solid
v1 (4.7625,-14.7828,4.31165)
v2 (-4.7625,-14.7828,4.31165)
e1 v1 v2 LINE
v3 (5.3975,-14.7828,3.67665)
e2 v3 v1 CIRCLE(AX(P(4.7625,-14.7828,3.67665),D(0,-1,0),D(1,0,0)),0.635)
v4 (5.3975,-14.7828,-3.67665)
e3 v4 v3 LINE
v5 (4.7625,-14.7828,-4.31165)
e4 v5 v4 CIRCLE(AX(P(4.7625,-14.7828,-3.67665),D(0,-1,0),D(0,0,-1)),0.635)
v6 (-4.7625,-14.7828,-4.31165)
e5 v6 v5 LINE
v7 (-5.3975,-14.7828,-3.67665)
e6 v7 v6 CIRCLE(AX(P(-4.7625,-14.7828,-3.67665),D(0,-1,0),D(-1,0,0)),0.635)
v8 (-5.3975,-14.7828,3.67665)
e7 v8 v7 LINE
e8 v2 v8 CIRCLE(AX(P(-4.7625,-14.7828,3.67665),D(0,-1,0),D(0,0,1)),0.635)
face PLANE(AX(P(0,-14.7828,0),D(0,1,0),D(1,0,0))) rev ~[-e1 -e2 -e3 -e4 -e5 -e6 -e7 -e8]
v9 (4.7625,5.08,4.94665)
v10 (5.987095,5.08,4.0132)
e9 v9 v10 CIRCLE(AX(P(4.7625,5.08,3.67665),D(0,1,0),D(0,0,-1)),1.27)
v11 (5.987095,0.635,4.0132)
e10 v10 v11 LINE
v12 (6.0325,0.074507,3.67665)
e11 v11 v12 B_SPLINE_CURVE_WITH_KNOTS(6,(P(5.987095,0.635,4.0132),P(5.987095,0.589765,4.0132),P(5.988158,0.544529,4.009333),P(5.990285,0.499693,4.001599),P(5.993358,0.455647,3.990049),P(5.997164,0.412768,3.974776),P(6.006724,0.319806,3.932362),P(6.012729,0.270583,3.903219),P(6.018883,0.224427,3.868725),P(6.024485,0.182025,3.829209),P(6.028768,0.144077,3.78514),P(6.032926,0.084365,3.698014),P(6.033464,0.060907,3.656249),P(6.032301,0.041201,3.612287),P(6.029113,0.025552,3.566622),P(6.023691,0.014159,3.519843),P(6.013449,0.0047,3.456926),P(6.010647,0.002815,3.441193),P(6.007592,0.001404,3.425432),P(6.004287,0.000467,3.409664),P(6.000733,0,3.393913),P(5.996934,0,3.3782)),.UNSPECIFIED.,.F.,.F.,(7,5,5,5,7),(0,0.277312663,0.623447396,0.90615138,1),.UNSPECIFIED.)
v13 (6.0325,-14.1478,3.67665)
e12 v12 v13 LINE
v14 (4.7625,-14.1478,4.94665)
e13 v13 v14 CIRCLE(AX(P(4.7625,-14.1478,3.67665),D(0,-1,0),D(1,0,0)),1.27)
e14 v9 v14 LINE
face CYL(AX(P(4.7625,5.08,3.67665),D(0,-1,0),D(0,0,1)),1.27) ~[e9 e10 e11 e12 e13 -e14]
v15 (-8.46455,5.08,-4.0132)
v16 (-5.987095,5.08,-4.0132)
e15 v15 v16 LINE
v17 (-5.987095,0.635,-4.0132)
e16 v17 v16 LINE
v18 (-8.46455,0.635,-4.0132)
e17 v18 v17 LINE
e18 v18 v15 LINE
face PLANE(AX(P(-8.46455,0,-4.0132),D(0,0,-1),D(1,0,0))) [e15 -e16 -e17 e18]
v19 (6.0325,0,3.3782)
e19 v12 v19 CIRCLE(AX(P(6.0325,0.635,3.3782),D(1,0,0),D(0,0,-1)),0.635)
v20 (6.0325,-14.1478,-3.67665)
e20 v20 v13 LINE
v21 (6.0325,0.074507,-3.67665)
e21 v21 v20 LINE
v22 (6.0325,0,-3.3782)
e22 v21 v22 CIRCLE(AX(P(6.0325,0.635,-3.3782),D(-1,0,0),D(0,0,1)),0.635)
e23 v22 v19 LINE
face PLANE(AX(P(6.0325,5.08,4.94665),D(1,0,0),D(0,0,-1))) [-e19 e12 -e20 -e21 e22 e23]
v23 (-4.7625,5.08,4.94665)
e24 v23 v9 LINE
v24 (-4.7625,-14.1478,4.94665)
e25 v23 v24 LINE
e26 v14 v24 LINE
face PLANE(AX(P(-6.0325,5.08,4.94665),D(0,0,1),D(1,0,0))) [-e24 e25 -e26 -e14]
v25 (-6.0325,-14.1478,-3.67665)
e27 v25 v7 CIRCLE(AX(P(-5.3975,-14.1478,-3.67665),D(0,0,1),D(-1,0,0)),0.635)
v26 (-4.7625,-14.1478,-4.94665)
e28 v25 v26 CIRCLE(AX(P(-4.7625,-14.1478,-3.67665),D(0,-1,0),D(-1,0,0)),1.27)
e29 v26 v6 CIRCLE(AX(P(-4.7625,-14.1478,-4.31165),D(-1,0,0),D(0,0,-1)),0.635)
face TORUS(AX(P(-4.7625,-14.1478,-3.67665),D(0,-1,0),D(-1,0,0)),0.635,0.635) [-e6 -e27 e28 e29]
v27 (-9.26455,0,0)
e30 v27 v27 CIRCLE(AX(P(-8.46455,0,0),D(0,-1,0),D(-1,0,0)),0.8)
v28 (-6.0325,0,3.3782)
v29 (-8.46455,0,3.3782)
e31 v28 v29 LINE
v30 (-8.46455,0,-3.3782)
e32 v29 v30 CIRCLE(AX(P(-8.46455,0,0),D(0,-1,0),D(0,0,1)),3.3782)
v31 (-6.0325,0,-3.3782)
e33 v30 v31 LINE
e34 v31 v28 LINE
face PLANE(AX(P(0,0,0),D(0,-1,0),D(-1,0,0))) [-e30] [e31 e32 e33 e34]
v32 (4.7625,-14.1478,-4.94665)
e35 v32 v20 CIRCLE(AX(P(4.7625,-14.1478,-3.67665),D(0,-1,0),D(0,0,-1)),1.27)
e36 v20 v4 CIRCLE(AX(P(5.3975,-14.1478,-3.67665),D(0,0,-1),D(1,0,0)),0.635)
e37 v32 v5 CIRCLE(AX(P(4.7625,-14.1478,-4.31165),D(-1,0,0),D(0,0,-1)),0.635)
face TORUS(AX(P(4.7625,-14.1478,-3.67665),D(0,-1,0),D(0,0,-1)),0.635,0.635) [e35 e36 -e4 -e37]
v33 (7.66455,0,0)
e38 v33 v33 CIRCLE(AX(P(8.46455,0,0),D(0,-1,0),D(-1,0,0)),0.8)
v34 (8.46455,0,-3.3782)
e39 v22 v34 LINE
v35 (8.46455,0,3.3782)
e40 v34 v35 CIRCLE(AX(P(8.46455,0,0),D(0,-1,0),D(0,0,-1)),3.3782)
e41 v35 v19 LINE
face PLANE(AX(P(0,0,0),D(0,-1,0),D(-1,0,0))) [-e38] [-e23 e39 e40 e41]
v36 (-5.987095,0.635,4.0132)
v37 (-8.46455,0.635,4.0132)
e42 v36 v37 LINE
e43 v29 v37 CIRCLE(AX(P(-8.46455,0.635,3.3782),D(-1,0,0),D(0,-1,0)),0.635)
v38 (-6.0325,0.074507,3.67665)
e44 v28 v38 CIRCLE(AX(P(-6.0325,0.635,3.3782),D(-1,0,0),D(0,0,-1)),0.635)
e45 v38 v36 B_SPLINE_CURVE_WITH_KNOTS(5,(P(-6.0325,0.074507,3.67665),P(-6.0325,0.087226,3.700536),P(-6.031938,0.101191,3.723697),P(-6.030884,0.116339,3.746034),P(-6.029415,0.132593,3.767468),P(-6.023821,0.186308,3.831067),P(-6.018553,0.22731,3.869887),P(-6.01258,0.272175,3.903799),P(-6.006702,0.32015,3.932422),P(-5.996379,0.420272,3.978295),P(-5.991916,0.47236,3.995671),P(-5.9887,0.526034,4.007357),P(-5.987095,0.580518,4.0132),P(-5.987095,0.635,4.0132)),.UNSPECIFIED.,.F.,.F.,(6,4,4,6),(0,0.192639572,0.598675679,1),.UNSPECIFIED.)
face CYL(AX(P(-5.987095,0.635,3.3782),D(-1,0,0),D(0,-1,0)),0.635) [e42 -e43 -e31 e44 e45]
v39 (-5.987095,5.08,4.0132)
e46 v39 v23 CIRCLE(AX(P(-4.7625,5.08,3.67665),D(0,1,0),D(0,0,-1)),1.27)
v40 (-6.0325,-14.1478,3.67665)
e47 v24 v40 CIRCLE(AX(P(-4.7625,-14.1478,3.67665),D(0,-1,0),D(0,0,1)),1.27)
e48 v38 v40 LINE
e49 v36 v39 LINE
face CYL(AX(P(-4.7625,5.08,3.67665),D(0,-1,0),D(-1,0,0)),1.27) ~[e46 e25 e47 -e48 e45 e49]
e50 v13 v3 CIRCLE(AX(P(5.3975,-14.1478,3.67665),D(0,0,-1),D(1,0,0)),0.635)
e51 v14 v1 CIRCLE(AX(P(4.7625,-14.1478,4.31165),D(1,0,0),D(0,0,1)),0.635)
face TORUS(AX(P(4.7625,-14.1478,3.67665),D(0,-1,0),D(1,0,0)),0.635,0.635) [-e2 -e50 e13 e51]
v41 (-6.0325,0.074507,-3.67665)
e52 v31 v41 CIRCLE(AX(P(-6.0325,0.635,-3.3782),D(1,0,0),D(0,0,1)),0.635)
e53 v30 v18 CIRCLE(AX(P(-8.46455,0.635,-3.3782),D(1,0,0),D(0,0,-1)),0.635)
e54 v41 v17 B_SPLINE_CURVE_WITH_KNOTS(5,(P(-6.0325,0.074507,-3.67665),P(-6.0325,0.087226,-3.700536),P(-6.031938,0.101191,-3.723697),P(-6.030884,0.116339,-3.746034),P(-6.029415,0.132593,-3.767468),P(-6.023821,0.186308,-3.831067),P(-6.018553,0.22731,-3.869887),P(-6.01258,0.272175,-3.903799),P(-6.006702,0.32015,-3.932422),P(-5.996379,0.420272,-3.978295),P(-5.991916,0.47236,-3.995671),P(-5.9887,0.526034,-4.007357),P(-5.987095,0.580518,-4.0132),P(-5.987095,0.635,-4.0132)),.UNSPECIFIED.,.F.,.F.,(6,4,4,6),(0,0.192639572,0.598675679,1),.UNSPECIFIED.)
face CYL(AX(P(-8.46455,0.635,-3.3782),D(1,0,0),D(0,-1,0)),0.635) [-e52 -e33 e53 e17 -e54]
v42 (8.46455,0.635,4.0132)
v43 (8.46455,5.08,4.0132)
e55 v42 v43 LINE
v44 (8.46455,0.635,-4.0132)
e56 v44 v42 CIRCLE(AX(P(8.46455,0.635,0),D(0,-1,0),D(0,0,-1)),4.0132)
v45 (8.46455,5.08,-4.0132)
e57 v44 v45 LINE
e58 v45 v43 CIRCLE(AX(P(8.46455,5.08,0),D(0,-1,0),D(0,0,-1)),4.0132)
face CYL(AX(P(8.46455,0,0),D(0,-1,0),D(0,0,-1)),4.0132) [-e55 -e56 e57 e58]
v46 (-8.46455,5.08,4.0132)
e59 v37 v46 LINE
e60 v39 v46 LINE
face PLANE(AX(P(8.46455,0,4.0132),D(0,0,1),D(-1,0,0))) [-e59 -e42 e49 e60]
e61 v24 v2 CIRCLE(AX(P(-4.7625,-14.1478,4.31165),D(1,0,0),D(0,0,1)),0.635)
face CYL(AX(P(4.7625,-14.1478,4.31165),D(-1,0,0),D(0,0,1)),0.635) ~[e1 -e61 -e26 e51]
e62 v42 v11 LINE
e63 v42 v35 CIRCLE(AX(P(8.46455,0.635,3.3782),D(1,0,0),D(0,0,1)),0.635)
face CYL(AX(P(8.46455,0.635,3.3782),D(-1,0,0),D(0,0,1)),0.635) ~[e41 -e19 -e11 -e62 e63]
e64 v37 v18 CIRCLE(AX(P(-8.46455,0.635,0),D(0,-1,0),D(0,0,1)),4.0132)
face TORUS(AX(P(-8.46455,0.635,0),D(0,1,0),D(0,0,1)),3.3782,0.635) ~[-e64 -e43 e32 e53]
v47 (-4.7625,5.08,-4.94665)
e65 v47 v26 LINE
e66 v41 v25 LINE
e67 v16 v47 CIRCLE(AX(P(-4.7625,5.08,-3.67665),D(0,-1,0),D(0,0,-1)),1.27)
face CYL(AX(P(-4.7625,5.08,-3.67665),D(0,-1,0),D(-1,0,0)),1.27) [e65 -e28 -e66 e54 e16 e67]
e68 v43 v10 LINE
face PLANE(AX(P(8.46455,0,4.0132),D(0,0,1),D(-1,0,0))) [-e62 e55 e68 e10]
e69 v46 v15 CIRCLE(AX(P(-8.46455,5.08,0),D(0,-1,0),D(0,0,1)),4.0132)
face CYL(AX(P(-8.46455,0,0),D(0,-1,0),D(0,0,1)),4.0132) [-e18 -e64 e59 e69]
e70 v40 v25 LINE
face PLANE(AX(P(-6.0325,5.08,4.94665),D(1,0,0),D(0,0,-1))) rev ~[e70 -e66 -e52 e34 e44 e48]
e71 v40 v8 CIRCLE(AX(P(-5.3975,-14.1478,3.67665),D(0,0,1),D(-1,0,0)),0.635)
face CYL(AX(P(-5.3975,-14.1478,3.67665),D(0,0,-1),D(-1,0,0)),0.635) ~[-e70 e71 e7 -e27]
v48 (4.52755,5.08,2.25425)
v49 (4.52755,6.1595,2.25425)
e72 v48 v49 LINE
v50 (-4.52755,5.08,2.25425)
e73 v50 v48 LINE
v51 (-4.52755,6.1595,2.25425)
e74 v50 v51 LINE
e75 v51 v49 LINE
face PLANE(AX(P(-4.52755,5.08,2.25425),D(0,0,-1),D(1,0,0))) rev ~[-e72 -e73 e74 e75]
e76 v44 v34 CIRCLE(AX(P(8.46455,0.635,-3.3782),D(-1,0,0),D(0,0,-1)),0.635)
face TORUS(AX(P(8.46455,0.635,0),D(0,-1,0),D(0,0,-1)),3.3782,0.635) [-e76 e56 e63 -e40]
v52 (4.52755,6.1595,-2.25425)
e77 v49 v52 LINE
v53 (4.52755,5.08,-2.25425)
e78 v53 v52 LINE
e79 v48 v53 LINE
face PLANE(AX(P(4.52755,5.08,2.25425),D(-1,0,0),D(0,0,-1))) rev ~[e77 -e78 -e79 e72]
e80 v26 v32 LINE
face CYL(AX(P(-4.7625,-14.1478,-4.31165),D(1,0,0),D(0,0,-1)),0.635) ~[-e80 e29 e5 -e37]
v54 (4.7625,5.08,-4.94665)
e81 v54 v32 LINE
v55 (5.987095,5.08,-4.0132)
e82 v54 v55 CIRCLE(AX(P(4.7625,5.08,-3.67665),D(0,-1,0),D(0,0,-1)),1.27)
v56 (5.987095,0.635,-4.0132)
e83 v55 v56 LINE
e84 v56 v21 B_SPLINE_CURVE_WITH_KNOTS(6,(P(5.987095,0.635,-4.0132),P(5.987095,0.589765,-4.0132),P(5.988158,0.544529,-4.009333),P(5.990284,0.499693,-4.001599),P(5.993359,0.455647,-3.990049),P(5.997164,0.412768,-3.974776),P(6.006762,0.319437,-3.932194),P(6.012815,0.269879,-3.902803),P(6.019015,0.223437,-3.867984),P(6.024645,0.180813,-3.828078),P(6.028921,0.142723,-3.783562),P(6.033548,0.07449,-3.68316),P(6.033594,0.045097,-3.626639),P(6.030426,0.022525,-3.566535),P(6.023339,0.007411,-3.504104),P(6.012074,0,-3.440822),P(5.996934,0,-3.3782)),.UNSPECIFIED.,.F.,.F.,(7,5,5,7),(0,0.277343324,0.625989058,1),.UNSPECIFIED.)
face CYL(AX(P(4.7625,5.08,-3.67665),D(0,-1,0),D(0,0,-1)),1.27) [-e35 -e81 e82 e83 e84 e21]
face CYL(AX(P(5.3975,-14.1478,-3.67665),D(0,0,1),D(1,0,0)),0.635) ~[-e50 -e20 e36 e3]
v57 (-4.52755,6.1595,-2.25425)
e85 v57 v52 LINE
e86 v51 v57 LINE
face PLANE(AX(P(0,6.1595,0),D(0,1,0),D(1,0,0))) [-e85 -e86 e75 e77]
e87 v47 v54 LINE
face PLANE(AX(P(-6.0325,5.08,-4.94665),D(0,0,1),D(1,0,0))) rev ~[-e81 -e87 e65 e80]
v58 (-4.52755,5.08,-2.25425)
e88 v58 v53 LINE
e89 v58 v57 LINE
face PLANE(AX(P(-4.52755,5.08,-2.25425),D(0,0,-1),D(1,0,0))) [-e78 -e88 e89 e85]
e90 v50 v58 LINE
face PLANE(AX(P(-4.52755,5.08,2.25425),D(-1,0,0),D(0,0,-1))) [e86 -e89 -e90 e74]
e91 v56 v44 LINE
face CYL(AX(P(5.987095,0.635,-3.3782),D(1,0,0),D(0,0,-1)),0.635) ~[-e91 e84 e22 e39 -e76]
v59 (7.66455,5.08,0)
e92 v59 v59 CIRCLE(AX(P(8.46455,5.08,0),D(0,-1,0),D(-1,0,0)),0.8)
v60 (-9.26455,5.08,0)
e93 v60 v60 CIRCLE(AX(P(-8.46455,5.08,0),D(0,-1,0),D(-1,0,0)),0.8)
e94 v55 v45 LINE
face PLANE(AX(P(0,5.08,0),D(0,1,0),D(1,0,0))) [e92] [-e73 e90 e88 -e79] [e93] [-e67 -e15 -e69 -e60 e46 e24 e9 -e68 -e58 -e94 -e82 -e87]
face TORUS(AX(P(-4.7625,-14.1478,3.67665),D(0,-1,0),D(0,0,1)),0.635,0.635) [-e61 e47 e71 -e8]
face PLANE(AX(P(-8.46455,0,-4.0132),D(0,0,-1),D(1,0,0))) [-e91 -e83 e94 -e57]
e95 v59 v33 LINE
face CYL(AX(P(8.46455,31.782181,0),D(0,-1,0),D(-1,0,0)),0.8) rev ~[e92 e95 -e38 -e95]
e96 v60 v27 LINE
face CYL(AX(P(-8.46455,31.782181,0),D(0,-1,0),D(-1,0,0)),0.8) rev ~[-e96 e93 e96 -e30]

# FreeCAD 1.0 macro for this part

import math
import FreeCAD as App
import Part
import Sketcher
from FreeCAD import Vector
Q = App.Units.Quantity


def edges_at(feature, points):
    """Names of the edges that pass closest to the given points."""
    edges = feature.Shape.Edges
    near = lambda p: min(range(len(edges)), key=lambda i: edges[i].distToShape(Part.Vertex(*p))[0])
    return sorted({f"Edge{near(p) + 1}" for p in points})


def add_polygon(sketch, points):
    """Adds a closed chain of lines whose ends are joined by coincident constraints."""
    first, n = sketch.GeometryCount, len(points)
    for a, b in zip(points, points[1:] + points[:1]):
        sketch.addGeometry(Part.LineSegment(App.Vector(*a, 0), App.Vector(*b, 0)), False)
    for i in range(n):
        sketch.addConstraint(Sketcher.Constraint("Coincident", first + i, 2, first + (i + 1) % n, 1))

doc = App.newDocument("Part")
body = doc.addObject("PartDesign::Body", "Body")

sketch1 = body.newObject("Sketcher::SketchObject", "Sketch")
sketch1.AttachmentSupport = (doc.getObject("XZ_Plane"), [""])
sketch1.MapMode = "FlatFace"
sketch1.addGeometry([
    Part.LineSegment(Vector(-8.5, 4, 0), Vector(8.5, 4, 0)),
    Part.ArcOfCircle(Part.Circle(Vector(8.5, 0, 0), Vector(0, 0, 1), 4), math.radians(-90), math.radians(90)),
    Part.LineSegment(Vector(8.5, -4, 0), Vector(-8.5, -4, 0)),
    Part.ArcOfCircle(Part.Circle(Vector(-8.5, 0, 0), Vector(0, 0, 1), 4), math.radians(90), math.radians(270)),
], False)
sketch1.addConstraint([
    Sketcher.Constraint("Tangent", 0, 2, 1, 2),
    Sketcher.Constraint("Tangent", 1, 1, 2, 1),
    Sketcher.Constraint("Tangent", 2, 2, 3, 2),
    Sketcher.Constraint("Tangent", 3, 1, 0, 1),
    Sketcher.Constraint("Horizontal", 0),
    Sketcher.Constraint("Horizontal", 2),
    Sketcher.Constraint("Symmetric", 1, 3, 3, 3, -1, 1),
    Sketcher.Constraint("Radius", 1, Q("0.158 in")),
    Sketcher.Constraint("DistanceX", 0, 1, 0, 2, Q("0.6665 in")),
])
pad1 = body.newObject("PartDesign::Pad", "Pad")
pad1.Profile = sketch1
pad1.Length = Q("0.2 in")
pad1.Reversed = True

sketch2 = body.newObject("Sketcher::SketchObject", "Sketch001")
sketch2.AttachmentSupport = (doc.getObject("XZ_Plane"), [""])
sketch2.MapMode = "FlatFace"
sketch2.AttachmentOffset = App.Placement(Vector(0, 0, -0.2 * 25.4), App.Rotation())
sketch2.addGeometry([
    Part.Circle(Vector(-8.5, 0, 0), Vector(0, 0, 1), 0.8),
    Part.Circle(Vector(8.5, 0, 0), Vector(0, 0, 1), 0.8),
], False)
sketch2.addConstraint([
    Sketcher.Constraint("Equal", 0, 1),
    Sketcher.Constraint("Symmetric", 0, 3, 1, 3, -1, 1),
    Sketcher.Constraint("PointOnObject", 0, 3, -1),
    Sketcher.Constraint("Diameter", 0, Q("1.6 mm")),
    Sketcher.Constraint("DistanceX", 0, 3, 1, 3, Q("0.6665 in")),
])
doc.recompute()
hole = body.newObject("PartDesign::Hole", "Hole")
hole.Profile = sketch2
hole.ThreadType = "None"
hole.Diameter = 1.6
hole.DepthType = "ThroughAll"
hole.Reversed = True

sketch3 = body.newObject("Sketcher::SketchObject", "Sketch002")
sketch3.AttachmentSupport = (doc.getObject("XZ_Plane"), [""])
sketch3.MapMode = "FlatFace"
sketch3.AttachmentOffset = App.Placement(Vector(0, 0, -0.2 * 25.4), App.Rotation())
add_polygon(sketch3, [(-6, -5), (-6, 5), (6, 5), (6, -5)])
sketch3.addConstraint([
    Sketcher.Constraint("Vertical", 0),
    Sketcher.Constraint("Horizontal", 1),
    Sketcher.Constraint("Vertical", 2),
    Sketcher.Constraint("Horizontal", 3),
    Sketcher.Constraint("Symmetric", 0, 2, 2, 2, -1, 1),
    Sketcher.Constraint("DistanceX", 1, 1, 1, 2, Q("0.475 in")),
    Sketcher.Constraint("DistanceY", 0, 1, 0, 2, Q("0.3895 in")),
])
pad2 = body.newObject("PartDesign::Pad", "Pad001")
pad2.Profile = sketch3
pad2.Length = Q("0.782 in")
doc.recompute()

fillet = body.newObject("PartDesign::Fillet", "Fillet")
fillet.Base = (pad2, edges_at(pad2, [
    (-6.032, -4.851, 4.947),
    (6.032, -4.851, 4.947),
    (-6.032, -4.851, -4.947),
    (6.032, -4.851, -4.947),
]))
fillet.Radius = Q("0.05 in")
doc.recompute()

fillet2 = body.newObject("PartDesign::Fillet", "Fillet001")
fillet2.Base = (fillet, edges_at(fillet, [
    (-7.226, 0, 4.013),
    (-12.478, 0, 0),
    (-7.226, 0, -4.013),
    (7.226, 0, -4.013),
    (7.226, 0, 4.013),
    (12.478, 0, 0),
]))
fillet2.Radius = Q("0.025 in")
doc.recompute()

fillet3 = body.newObject("PartDesign::Fillet", "Fillet002")
fillet3.Base = (fillet2, edges_at(fillet2, [
    (-6.032, -14.783, 0),
    (0, -14.783, 4.947),
    (0, -14.783, -4.947),
    (6.032, -14.783, 0),
    (5.661, -14.783, -4.575),
    (-5.661, -14.783, -4.575),
    (5.661, -14.783, 4.575),
    (-5.661, -14.783, 4.575),
]))
fillet3.Radius = Q("0.025 in")

sketch4 = body.newObject("Sketcher::SketchObject", "Sketch003")
sketch4.AttachmentSupport = (doc.getObject("XZ_Plane"), [""])
sketch4.MapMode = "FlatFace"
sketch4.AttachmentOffset = App.Placement(Vector(0, 0, -0.2 * 25.4), App.Rotation())
add_polygon(sketch4, [(-4.5, -2.3), (-4.5, 2.3), (4.5, 2.3), (4.5, -2.3)])
sketch4.addConstraint([
    Sketcher.Constraint("Vertical", 0),
    Sketcher.Constraint("Horizontal", 1),
    Sketcher.Constraint("Vertical", 2),
    Sketcher.Constraint("Horizontal", 3),
    Sketcher.Constraint("Symmetric", 0, 2, 2, 2, -1, 1),
    Sketcher.Constraint("DistanceX", 1, 1, 1, 2, Q("0.3565 in")),
    Sketcher.Constraint("DistanceY", 0, 1, 0, 2, Q("0.1775 in")),
])
pad3 = body.newObject("PartDesign::Pad", "Pad002")
pad3.Profile = sketch4
pad3.Length = Q("0.0425 in")
pad3.Reversed = True

doc.recompute()
